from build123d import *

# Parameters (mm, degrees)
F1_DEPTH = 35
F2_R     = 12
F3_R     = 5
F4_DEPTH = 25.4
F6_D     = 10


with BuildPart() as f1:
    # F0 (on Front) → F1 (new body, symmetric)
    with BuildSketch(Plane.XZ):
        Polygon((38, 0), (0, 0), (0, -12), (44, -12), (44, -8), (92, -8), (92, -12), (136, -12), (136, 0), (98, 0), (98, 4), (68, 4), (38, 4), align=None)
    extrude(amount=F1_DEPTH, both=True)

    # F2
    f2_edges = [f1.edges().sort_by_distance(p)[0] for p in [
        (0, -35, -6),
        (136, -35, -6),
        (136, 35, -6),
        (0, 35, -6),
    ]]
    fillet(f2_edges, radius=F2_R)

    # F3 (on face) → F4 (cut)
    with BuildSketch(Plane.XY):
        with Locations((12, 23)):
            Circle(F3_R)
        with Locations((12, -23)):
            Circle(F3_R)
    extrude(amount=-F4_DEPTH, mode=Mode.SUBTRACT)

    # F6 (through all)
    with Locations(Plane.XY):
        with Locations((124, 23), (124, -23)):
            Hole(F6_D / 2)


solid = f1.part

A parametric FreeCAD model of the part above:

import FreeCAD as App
import Part
import Sketcher
from FreeCAD import Vector


def edges_at(feature, points):
    """Names of the edges that pass closest to the given points."""
    edges = feature.Shape.Edges
    near = lambda p: min(range(len(edges)), key=lambda i: edges[i].distToShape(Part.Vertex(*p))[0])
    return sorted({f"Edge{near(p) + 1}" for p in points})

doc = App.newDocument("Part")
body = doc.addObject("PartDesign::Body", "Body")

sketch1 = body.newObject("Sketcher::SketchObject", "Sketch")
sketch1.AttachmentSupport = (doc.getObject("XZ_Plane"), [""])
sketch1.MapMode = "FlatFace"
sketch1.addGeometry(Part.LineSegment(Vector(38, 0, 0), Vector(0, 0, 0)), False)
sketch1.addGeometry(Part.LineSegment(Vector(0, 0, 0), Vector(0, -12, 0)), False)
sketch1.addGeometry(Part.LineSegment(Vector(0, -12, 0), Vector(44, -12, 0)), False)
sketch1.addGeometry(Part.LineSegment(Vector(44, -12, 0), Vector(44, -8, 0)), False)
sketch1.addGeometry(Part.LineSegment(Vector(44, -8, 0), Vector(92, -8, 0)), False)
sketch1.addGeometry(Part.LineSegment(Vector(92, -8, 0), Vector(92, -12, 0)), False)
sketch1.addGeometry(Part.LineSegment(Vector(92, -12, 0), Vector(136, -12, 0)), False)
sketch1.addGeometry(Part.LineSegment(Vector(136, -12, 0), Vector(136, 0, 0)), False)
sketch1.addGeometry(Part.LineSegment(Vector(136, 0, 0), Vector(98, 0, 0)), False)
sketch1.addGeometry(Part.LineSegment(Vector(98, 0, 0), Vector(98, 4, 0)), False)
sketch1.addGeometry(Part.LineSegment(Vector(98, 4, 0), Vector(38, 4, 0)), False)
sketch1.addGeometry(Part.LineSegment(Vector(38, 4, 0), Vector(38, 0, 0)), False)
sketch1.addConstraint(Sketcher.Constraint("Coincident", 0, 2, 1, 1))
sketch1.addConstraint(Sketcher.Constraint("Coincident", 1, 2, 2, 1))
sketch1.addConstraint(Sketcher.Constraint("Coincident", 2, 2, 3, 1))
sketch1.addConstraint(Sketcher.Constraint("Coincident", 3, 2, 4, 1))
sketch1.addConstraint(Sketcher.Constraint("Coincident", 4, 2, 5, 1))
sketch1.addConstraint(Sketcher.Constraint("Coincident", 5, 2, 6, 1))
sketch1.addConstraint(Sketcher.Constraint("Coincident", 6, 2, 7, 1))
sketch1.addConstraint(Sketcher.Constraint("Coincident", 7, 2, 8, 1))
sketch1.addConstraint(Sketcher.Constraint("Coincident", 8, 2, 9, 1))
sketch1.addConstraint(Sketcher.Constraint("Coincident", 9, 2, 10, 1))
sketch1.addConstraint(Sketcher.Constraint("Coincident", 10, 2, 11, 1))
sketch1.addConstraint(Sketcher.Constraint("Coincident", 11, 2, 0, 1))
sketch1.addConstraint(Sketcher.Constraint("Horizontal", 0))
sketch1.addConstraint(Sketcher.Constraint("Vertical", 1))
sketch1.addConstraint(Sketcher.Constraint("Horizontal", 2))
sketch1.addConstraint(Sketcher.Constraint("Vertical", 3))
sketch1.addConstraint(Sketcher.Constraint("Horizontal", 4))
sketch1.addConstraint(Sketcher.Constraint("Vertical", 5))
sketch1.addConstraint(Sketcher.Constraint("Horizontal", 6))
sketch1.addConstraint(Sketcher.Constraint("Vertical", 7))
sketch1.addConstraint(Sketcher.Constraint("Horizontal", 8))
sketch1.addConstraint(Sketcher.Constraint("Vertical", 9))
sketch1.addConstraint(Sketcher.Constraint("Horizontal", 10))
sketch1.addConstraint(Sketcher.Constraint("Vertical", 11))
sketch1.addConstraint(Sketcher.Constraint("Coincident", 0, 2, -1, 1))
sketch1.addConstraint(Sketcher.Constraint("PointOnObject", 7, 2, -1))
sketch1.addConstraint(Sketcher.Constraint("Horizontal", 2, 2, 5, 2))
sketch1.addConstraint(Sketcher.Constraint("Equal", 2, 6))
sketch1.addConstraint(Sketcher.Constraint("Equal", 0, 8))
sketch1.addConstraint(Sketcher.Constraint("Equal", 5, 9))
sketch1.addConstraint(Sketcher.Constraint("DistanceX", 0, 2, 0, 1, 38.0))
sketch1.addConstraint(Sketcher.Constraint("DistanceX", 2, 1, 2, 2, 44.0))
sketch1.addConstraint(Sketcher.Constraint("DistanceX", 4, 1, 4, 2, 48.0))
sketch1.addConstraint(Sketcher.Constraint("DistanceY", 1, 2, 1, 1, 12.0))
sketch1.addConstraint(Sketcher.Constraint("DistanceY", 3, 1, 3, 2, 4.0))
pad1 = body.newObject("PartDesign::Pad", "Pad")
pad1.Profile = sketch1
pad1.Length = 70
pad1.Midplane = True
doc.recompute()

fillet = body.newObject("PartDesign::Fillet", "Fillet")
fillet.Base = (pad1, edges_at(pad1, [
    (0, -35, -6),
    (136, -35, -6),
    (136, 35, -6),
    (0, 35, -6),
]))
fillet.Radius = 12

sketch2 = body.newObject("Sketcher::SketchObject", "Sketch001")
sketch2.AttachmentSupport = (doc.getObject("XY_Plane"), [""])
sketch2.MapMode = "FlatFace"
sketch2.addGeometry(Part.Circle(Vector(12, 23, 0), Vector(0, 0, 1), 5), False)
sketch2.addGeometry(Part.Circle(Vector(12, -23, 0), Vector(0, 0, 1), 5), False)
sketch2.addConstraint(Sketcher.Constraint("Equal", 0, 1))
sketch2.addConstraint(Sketcher.Constraint("Symmetric", 0, 3, 1, 3, -1))
sketch2.addConstraint(Sketcher.Constraint("Diameter", 0, 10.0))
sketch2.addConstraint(Sketcher.Constraint("DistanceX", -1, 1, 0, 3, 12.0))
sketch2.addConstraint(Sketcher.Constraint("DistanceY", -1, 1, 0, 3, 23.0))
pocket1 = body.newObject("PartDesign::Pocket", "Pocket")
pocket1.Profile = sketch2
pocket1.Length = 25.4

sketch3 = body.newObject("Sketcher::SketchObject", "Sketch002")
sketch3.AttachmentSupport = (doc.getObject("XY_Plane"), [""])
sketch3.MapMode = "FlatFace"
sketch3.addGeometry(Part.Circle(Vector(124, 23, 0), Vector(0, 0, 1), 5), False)
sketch3.addGeometry(Part.Circle(Vector(124, -23, 0), Vector(0, 0, 1), 5), False)
sketch3.addConstraint(Sketcher.Constraint("Equal", 0, 1))
sketch3.addConstraint(Sketcher.Constraint("Symmetric", 0, 3, 1, 3, -1))
sketch3.addConstraint(Sketcher.Constraint("Diameter", 0, 10.0))
sketch3.addConstraint(Sketcher.Constraint("DistanceX", -1, 1, 0, 3, 124.0))
sketch3.addConstraint(Sketcher.Constraint("DistanceY", -1, 1, 0, 3, 23.0))
doc.recompute()
hole = body.newObject("PartDesign::Hole", "Hole")
hole.Profile = sketch3
hole.ThreadType = "None"
hole.Diameter = 10
hole.DepthType = "ThroughAll"

doc.recompute()
